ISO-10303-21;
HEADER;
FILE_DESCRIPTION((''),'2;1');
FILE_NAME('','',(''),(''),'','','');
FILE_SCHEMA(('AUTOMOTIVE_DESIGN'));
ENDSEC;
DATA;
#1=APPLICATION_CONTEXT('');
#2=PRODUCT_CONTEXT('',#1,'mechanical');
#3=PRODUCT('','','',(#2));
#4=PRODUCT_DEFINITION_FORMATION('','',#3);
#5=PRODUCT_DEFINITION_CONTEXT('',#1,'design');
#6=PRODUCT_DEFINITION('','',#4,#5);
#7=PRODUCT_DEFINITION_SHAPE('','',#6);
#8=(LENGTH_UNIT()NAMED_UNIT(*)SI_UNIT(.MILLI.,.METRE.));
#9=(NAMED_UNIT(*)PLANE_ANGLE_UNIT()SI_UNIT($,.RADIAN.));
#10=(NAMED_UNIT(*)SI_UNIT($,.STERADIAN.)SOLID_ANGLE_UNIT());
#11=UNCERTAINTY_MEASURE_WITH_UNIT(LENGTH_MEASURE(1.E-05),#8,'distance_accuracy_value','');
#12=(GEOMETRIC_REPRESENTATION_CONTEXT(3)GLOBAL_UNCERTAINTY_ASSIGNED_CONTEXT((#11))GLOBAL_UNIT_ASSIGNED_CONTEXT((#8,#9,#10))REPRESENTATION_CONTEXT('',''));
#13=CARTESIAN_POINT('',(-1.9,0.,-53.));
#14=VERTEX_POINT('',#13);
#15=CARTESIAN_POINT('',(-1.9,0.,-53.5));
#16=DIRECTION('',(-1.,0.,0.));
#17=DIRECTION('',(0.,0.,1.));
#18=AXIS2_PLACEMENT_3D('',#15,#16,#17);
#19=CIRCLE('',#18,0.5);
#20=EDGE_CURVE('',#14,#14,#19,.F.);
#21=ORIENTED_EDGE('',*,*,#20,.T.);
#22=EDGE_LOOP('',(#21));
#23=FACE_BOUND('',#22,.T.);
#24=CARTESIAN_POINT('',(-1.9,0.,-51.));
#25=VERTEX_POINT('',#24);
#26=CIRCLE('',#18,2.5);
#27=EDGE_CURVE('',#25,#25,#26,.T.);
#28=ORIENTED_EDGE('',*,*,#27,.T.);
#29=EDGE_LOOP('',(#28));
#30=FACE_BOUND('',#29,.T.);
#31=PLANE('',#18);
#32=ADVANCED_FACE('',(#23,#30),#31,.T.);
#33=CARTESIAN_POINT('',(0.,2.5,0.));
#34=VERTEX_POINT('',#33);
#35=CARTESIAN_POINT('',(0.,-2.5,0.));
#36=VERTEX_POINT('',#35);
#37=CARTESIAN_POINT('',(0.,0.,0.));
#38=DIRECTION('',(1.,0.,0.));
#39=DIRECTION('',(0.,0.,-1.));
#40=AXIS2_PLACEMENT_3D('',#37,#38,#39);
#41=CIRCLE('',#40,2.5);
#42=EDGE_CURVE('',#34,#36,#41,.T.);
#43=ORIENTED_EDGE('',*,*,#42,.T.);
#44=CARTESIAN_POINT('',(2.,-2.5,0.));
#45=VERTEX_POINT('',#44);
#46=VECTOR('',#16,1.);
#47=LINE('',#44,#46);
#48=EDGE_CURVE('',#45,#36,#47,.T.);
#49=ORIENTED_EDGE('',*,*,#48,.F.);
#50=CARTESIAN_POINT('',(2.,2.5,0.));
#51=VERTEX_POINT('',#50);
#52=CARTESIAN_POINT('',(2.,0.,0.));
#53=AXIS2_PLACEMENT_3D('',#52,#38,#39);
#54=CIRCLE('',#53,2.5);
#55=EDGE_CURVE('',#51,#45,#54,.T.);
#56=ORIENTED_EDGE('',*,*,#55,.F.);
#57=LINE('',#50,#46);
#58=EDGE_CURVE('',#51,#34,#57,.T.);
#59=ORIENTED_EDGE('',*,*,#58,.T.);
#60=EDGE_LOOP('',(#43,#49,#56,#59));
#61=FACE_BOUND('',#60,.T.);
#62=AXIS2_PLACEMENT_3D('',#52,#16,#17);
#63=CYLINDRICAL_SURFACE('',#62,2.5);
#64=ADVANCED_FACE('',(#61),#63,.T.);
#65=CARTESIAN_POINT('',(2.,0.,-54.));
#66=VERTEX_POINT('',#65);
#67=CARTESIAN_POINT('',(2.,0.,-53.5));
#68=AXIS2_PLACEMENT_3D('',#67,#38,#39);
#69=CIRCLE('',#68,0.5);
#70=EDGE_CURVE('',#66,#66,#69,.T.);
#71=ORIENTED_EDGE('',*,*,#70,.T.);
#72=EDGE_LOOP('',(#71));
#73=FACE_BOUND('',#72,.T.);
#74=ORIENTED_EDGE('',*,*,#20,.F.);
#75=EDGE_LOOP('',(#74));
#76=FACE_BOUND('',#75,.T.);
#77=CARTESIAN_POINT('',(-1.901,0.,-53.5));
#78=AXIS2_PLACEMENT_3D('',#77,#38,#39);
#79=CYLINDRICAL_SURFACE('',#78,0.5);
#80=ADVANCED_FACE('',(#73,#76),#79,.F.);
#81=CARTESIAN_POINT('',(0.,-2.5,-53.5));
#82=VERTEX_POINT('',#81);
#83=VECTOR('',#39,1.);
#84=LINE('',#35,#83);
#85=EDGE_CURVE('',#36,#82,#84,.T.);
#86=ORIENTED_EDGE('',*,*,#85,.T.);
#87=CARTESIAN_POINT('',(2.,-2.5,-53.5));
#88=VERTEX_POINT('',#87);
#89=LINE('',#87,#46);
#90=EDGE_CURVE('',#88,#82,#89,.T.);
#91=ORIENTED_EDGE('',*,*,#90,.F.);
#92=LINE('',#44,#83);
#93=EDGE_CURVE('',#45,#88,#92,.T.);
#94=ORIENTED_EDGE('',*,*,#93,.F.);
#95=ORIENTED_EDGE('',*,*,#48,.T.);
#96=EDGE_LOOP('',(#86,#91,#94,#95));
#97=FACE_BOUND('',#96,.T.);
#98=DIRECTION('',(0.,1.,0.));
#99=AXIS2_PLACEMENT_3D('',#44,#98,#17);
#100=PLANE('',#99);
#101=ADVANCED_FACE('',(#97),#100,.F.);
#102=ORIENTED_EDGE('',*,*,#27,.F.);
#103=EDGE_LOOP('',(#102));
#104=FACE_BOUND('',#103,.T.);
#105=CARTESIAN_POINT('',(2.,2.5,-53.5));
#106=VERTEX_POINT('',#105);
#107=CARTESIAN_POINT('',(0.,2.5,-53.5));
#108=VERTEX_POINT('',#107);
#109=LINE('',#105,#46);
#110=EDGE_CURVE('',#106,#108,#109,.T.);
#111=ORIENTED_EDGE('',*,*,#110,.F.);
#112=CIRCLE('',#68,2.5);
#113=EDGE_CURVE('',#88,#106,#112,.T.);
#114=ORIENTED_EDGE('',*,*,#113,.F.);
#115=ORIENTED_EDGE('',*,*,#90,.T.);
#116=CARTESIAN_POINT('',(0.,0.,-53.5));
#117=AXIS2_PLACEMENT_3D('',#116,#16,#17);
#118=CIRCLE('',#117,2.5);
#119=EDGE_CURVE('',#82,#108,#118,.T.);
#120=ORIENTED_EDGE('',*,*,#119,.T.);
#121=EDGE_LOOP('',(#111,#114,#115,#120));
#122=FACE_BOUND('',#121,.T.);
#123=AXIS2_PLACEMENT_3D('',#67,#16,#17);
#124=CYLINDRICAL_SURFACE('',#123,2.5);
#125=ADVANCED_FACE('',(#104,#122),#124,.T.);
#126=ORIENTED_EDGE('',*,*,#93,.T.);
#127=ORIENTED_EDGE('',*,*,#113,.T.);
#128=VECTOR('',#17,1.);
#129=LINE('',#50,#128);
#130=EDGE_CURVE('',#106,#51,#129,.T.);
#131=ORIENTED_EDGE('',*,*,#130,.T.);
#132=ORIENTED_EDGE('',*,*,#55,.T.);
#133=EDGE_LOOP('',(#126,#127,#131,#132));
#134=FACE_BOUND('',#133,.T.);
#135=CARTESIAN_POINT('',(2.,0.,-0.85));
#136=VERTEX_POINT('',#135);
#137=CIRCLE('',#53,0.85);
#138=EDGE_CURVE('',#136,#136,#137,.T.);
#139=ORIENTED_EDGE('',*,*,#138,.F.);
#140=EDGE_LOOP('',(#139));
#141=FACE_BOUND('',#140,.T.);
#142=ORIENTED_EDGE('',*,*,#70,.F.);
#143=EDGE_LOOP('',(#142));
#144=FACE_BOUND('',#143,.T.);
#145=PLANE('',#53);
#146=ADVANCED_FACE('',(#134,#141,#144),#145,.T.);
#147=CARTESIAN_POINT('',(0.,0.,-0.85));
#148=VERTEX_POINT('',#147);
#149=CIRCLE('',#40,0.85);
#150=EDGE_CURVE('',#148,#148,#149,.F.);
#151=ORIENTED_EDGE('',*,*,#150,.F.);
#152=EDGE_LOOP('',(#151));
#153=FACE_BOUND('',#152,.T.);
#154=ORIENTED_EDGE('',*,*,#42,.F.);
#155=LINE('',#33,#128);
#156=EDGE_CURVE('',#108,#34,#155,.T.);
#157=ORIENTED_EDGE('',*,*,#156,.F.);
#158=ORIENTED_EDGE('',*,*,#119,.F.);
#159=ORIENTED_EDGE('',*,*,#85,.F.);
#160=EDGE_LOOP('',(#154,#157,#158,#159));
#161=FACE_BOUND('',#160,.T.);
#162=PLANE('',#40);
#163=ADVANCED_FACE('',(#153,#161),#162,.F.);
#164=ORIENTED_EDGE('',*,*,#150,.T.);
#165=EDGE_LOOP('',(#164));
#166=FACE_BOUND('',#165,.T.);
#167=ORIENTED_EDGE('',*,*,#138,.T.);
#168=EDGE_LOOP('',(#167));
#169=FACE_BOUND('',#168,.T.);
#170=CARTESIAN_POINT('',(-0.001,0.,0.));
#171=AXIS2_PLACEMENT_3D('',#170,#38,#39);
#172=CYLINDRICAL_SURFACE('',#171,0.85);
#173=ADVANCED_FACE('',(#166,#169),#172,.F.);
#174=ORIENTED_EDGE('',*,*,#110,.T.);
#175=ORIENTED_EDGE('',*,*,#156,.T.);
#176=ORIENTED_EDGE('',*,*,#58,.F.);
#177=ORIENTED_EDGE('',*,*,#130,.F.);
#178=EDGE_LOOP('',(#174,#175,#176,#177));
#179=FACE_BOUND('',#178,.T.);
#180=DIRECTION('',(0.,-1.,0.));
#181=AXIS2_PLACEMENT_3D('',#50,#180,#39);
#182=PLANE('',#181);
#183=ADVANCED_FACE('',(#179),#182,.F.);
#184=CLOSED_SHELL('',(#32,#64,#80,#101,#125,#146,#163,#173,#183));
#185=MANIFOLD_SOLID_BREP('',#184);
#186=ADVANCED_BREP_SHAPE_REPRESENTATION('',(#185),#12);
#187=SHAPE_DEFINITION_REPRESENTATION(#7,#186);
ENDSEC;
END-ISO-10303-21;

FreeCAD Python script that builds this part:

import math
import FreeCAD as App
import Part
import Sketcher
Q = App.Units.Quantity

doc = App.newDocument("Part")
body = doc.addObject("PartDesign::Body", "Body")

sketch1 = body.newObject("Sketcher::SketchObject", "Sketch")
sketch1.AttachmentSupport = (doc.getObject("YZ_Plane"), [""])
sketch1.MapMode = "FlatFace"
sketch1.addGeometry([
    Part.LineSegment(App.Vector(2.5, -53.5, 0), App.Vector(2.5, 0, 0)),
    Part.ArcOfCircle(Part.Circle(App.Vector(0, 0, 0), App.Vector(0, 0, 1), 2.5), math.radians(0), math.radians(180)),
    Part.LineSegment(App.Vector(-2.5, 0, 0), App.Vector(-2.5, -53.5, 0)),
    Part.ArcOfCircle(Part.Circle(App.Vector(0, -53.5, 0), App.Vector(0, 0, 1), 2.5), math.radians(180), math.radians(360)),
], False)
sketch1.addConstraint([
    Sketcher.Constraint("Tangent", 0, 2, 1, 1),
    Sketcher.Constraint("Tangent", 1, 2, 2, 1),
    Sketcher.Constraint("Tangent", 2, 2, 3, 1),
    Sketcher.Constraint("Tangent", 3, 2, 0, 1),
    Sketcher.Constraint("Vertical", 0),
    Sketcher.Constraint("Vertical", 2),
    Sketcher.Constraint("Coincident", 1, 3, -1, 1),
    Sketcher.Constraint("Radius", 1, Q("2.5 mm")),
    Sketcher.Constraint("DistanceY", 0, 1, 0, 2, Q("53.5 mm")),
])
pad1 = body.newObject("PartDesign::Pad", "Pad")
pad1.Profile = sketch1
pad1.Length = 2

sketch2 = body.newObject("Sketcher::SketchObject", "Sketch001")
sketch2.AttachmentSupport = (doc.getObject("YZ_Plane"), [""])
sketch2.MapMode = "FlatFace"
sketch2.AttachmentOffset = App.Placement(App.Vector(0, 0, 2), App.Rotation())
sketch2.addGeometry(Part.Circle(App.Vector(0, 0, 0), App.Vector(0, 0, 1), 0.8), False)
sketch2.addConstraint([
    Sketcher.Constraint("Coincident", 0, 3, -1, 1),
    Sketcher.Constraint("Diameter", 0, Q("1.7 mm")),
])
pocket1 = body.newObject("PartDesign::Pocket", "Pocket")
pocket1.Profile = sketch2
pocket1.Type = "UpToFirst"

sketch3 = body.newObject("Sketcher::SketchObject", "Sketch002")
sketch3.AttachmentSupport = (doc.getObject("YZ_Plane"), [""])
sketch3.MapMode = "FlatFace"
sketch3.AttachmentOffset = App.Placement(App.Vector(0, 0, -1.9), App.Rotation())
sketch3.addGeometry(Part.Circle(App.Vector(0, -53.5, 0), App.Vector(0, 0, 1), 2.5), False)
sketch3.addConstraint([
    Sketcher.Constraint("PointOnObject", 0, 3, -2),
    Sketcher.Constraint("Diameter", 0, Q("5 mm")),
    Sketcher.Constraint("DistanceY", 0, 3, -1, 1, Q("53.5 mm")),
])
pad2 = body.newObject("PartDesign::Pad", "Pad001")
pad2.Profile = sketch3
pad2.Length = 1.9

sketch4 = body.newObject("Sketcher::SketchObject", "Sketch003")
sketch4.AttachmentSupport = (doc.getObject("YZ_Plane"), [""])
sketch4.MapMode = "FlatFace"
sketch4.AttachmentOffset = App.Placement(App.Vector(0, 0, 2), App.Rotation())
sketch4.addGeometry(Part.Circle(App.Vector(0, -53.5, 0), App.Vector(0, 0, 1), 0.5), False)
sketch4.addConstraint([
    Sketcher.Constraint("PointOnObject", 0, 3, -2),
    Sketcher.Constraint("Diameter", 0, Q("1 mm")),
    Sketcher.Constraint("DistanceY", 0, 3, -1, 1, Q("53.5 mm")),
])
pocket2 = body.newObject("PartDesign::Pocket", "Pocket001")
pocket2.Profile = sketch4
pocket2.Type = "UpToFirst"

doc.recompute()
